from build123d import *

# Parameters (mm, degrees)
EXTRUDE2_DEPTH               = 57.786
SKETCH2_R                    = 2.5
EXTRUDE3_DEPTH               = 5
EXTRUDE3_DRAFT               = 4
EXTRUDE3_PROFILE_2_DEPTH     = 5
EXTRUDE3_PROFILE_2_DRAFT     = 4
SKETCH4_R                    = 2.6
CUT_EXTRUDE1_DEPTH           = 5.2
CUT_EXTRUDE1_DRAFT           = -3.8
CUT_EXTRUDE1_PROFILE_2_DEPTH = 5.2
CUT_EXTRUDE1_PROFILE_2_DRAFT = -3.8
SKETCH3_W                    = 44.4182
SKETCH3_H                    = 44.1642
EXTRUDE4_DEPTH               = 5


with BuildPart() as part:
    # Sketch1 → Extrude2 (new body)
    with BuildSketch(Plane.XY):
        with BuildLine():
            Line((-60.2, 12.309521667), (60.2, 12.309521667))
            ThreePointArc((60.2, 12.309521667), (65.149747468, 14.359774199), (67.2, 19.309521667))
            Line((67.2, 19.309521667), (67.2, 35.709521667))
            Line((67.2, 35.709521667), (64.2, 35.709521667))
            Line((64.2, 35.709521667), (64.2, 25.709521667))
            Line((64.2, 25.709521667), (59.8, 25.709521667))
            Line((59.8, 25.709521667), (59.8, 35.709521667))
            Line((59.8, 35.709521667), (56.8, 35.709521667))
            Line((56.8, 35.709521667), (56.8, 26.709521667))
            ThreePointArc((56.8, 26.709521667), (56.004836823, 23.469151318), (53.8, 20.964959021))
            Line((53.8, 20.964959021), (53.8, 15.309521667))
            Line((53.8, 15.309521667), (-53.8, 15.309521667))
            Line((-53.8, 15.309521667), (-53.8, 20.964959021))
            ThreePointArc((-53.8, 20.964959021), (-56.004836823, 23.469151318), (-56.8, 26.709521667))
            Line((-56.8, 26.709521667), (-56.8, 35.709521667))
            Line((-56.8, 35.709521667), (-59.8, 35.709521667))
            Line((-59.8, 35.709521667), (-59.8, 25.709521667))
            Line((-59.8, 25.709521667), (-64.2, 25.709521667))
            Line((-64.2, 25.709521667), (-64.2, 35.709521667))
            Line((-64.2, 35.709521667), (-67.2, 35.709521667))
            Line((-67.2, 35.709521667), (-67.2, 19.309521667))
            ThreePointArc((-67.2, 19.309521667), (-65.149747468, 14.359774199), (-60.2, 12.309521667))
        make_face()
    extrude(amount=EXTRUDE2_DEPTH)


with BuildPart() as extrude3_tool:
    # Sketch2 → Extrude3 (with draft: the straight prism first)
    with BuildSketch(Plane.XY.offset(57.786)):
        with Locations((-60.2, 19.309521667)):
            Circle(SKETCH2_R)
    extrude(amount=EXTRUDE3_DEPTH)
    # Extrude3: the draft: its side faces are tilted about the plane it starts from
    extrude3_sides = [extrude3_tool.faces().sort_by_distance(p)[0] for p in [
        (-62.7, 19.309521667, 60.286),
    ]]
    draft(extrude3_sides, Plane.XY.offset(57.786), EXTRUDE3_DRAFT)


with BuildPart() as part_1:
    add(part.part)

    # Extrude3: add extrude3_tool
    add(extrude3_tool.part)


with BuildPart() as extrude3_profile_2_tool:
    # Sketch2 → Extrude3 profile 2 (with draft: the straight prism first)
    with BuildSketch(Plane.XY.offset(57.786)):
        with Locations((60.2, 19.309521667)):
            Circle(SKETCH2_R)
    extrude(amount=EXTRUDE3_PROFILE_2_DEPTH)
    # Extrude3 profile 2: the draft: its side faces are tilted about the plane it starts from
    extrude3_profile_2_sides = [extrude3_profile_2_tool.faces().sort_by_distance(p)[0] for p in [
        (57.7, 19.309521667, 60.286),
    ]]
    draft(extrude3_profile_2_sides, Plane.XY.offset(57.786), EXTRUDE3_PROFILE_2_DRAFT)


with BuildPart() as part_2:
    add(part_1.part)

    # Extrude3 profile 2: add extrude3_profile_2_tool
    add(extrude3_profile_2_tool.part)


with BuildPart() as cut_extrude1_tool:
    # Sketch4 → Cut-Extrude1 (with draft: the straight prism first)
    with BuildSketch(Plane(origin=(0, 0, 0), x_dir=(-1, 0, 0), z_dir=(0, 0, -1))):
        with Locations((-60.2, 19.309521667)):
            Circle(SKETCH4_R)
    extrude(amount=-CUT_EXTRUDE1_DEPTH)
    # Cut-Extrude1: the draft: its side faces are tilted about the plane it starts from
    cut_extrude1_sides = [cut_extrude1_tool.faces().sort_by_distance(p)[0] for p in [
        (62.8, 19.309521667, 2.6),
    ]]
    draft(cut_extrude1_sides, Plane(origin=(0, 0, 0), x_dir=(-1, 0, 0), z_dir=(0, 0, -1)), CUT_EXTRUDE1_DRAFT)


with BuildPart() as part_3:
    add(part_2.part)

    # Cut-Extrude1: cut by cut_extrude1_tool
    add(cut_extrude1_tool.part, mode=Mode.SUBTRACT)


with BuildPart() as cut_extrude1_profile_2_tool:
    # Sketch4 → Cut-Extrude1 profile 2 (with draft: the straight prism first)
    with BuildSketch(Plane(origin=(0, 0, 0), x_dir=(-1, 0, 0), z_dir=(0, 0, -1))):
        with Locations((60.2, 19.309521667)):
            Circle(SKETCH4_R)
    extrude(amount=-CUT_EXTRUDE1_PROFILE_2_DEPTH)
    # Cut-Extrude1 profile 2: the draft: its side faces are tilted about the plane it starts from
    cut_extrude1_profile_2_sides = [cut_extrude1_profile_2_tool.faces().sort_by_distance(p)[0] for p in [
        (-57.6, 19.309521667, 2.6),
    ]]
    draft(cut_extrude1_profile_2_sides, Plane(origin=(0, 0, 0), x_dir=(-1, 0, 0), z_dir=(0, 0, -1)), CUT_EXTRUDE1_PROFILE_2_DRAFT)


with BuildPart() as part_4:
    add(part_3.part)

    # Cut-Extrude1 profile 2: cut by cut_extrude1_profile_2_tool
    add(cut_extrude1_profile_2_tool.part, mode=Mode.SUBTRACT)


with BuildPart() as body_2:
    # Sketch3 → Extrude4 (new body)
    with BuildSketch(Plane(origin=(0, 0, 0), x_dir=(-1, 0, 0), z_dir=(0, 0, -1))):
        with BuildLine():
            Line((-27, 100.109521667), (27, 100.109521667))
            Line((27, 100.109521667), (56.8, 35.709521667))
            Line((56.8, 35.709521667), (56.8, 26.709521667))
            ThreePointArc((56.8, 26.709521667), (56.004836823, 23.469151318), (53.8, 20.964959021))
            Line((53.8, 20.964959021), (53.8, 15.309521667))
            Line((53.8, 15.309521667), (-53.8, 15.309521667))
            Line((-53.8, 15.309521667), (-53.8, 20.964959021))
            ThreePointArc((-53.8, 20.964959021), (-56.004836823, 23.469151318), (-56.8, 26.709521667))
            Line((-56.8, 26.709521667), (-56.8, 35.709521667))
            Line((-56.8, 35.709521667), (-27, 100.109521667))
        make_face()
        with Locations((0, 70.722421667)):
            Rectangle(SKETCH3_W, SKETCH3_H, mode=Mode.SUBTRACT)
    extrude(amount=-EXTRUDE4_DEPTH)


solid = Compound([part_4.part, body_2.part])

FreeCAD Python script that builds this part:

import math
import FreeCAD as App
import Part
import Sketcher
from FreeCAD import Vector
Q = App.Units.Quantity


def faces_at(feature, points):
    """Names of the faces that lie closest to the given points."""
    faces = feature.Shape.Faces
    near = lambda p: min(range(len(faces)), key=lambda i: faces[i].distToShape(Part.Vertex(*p))[0])
    return sorted({f"Face{near(p) + 1}" for p in points})


def add_polygon(sketch, points):
    """Adds a closed chain of lines whose ends are joined by coincident constraints."""
    first, n = sketch.GeometryCount, len(points)
    for a, b in zip(points, points[1:] + points[:1]):
        sketch.addGeometry(Part.LineSegment(App.Vector(*a, 0), App.Vector(*b, 0)), False)
    for i in range(n):
        sketch.addConstraint(Sketcher.Constraint("Coincident", first + i, 2, first + (i + 1) % n, 1))

doc = App.newDocument("Part")
body = doc.addObject("PartDesign::Body", "Body")

# Sketch on XY plane
sketch1 = body.newObject("Sketcher::SketchObject", "Sketch")
sketch1.AttachmentSupport = (doc.getObject("XY_Plane"), [""])
sketch1.MapMode = "FlatFace"
sketch1.addGeometry([
    Part.LineSegment(Vector(-60.2, 12.309522, 0), Vector(60.2, 12.309522, 0)),  # 0
    Part.ArcOfCircle(Part.Circle(Vector(60.2, 19.309522, 0), Vector(0, 0, 1), 7), math.radians(-90), math.radians(0)),  # 1
    Part.LineSegment(Vector(67.2, 19.309522, 0), Vector(67.2, 35.709522, 0)),  # 2
    Part.LineSegment(Vector(67.2, 35.709522, 0), Vector(64.2, 35.709522, 0)),  # 3
    Part.LineSegment(Vector(64.2, 35.709522, 0), Vector(64.2, 25.709522, 0)),  # 4
    Part.LineSegment(Vector(64.2, 25.709522, 0), Vector(59.8, 25.709522, 0)),  # 5
    Part.LineSegment(Vector(59.8, 25.709522, 0), Vector(59.8, 35.709522, 0)),  # 6
    Part.LineSegment(Vector(59.8, 35.709522, 0), Vector(56.8, 35.709522, 0)),  # 7
    Part.LineSegment(Vector(56.8, 35.709522, 0), Vector(56.8, 26.709522, 0)),  # 8
    Part.ArcOfCircle(Part.Circle(Vector(49.8, 26.709522, 0), Vector(0, 0, 1), 7), math.radians(-55.150095), math.radians(0)),  # 9
    Part.LineSegment(Vector(53.8, 20.964959, 0), Vector(53.8, 15.309522, 0)),  # 10
    Part.LineSegment(Vector(53.8, 15.309522, 0), Vector(-53.8, 15.309522, 0)),  # 11
    Part.LineSegment(Vector(-53.8, 15.309522, 0), Vector(-53.8, 20.964959, 0)),  # 12
    Part.ArcOfCircle(Part.Circle(Vector(-49.8, 26.709522, 0), Vector(0, 0, 1), 7), math.radians(180), math.radians(235.150095)),  # 13
    Part.LineSegment(Vector(-56.8, 26.709522, 0), Vector(-56.8, 35.709522, 0)),  # 14
    Part.LineSegment(Vector(-56.8, 35.709522, 0), Vector(-59.8, 35.709522, 0)),  # 15
    Part.LineSegment(Vector(-59.8, 35.709522, 0), Vector(-59.8, 25.709522, 0)),  # 16
    Part.LineSegment(Vector(-59.8, 25.709522, 0), Vector(-64.2, 25.709522, 0)),  # 17
    Part.LineSegment(Vector(-64.2, 25.709522, 0), Vector(-64.2, 35.709522, 0)),  # 18
    Part.LineSegment(Vector(-64.2, 35.709522, 0), Vector(-67.2, 35.709522, 0)),  # 19
    Part.LineSegment(Vector(-67.2, 35.709522, 0), Vector(-67.2, 19.309522, 0)),  # 20
    Part.ArcOfCircle(Part.Circle(Vector(-60.2, 19.309522, 0), Vector(0, 0, 1), 7), math.radians(-180), math.radians(-90)),  # 21
], False)
sketch1.addConstraint([
    Sketcher.Constraint("Tangent", 0, 2, 1, 1),
    Sketcher.Constraint("Tangent", 1, 2, 2, 1),
    Sketcher.Constraint("Coincident", 2, 2, 3, 1),
    Sketcher.Constraint("Coincident", 3, 2, 4, 1),
    Sketcher.Constraint("Coincident", 4, 2, 5, 1),
    Sketcher.Constraint("Coincident", 5, 2, 6, 1),
    Sketcher.Constraint("Coincident", 6, 2, 7, 1),
    Sketcher.Constraint("Coincident", 7, 2, 8, 1),
    Sketcher.Constraint("Tangent", 8, 2, 9, 2),
    Sketcher.Constraint("Coincident", 9, 1, 10, 1),
    Sketcher.Constraint("Coincident", 10, 2, 11, 1),
    Sketcher.Constraint("Coincident", 11, 2, 12, 1),
    Sketcher.Constraint("Coincident", 12, 2, 13, 2),
    Sketcher.Constraint("Tangent", 13, 1, 14, 1),
    Sketcher.Constraint("Coincident", 14, 2, 15, 1),
    Sketcher.Constraint("Coincident", 15, 2, 16, 1),
    Sketcher.Constraint("Coincident", 16, 2, 17, 1),
    Sketcher.Constraint("Coincident", 17, 2, 18, 1),
    Sketcher.Constraint("Coincident", 18, 2, 19, 1),
    Sketcher.Constraint("Coincident", 19, 2, 20, 1),
    Sketcher.Constraint("Tangent", 20, 2, 21, 1),
    Sketcher.Constraint("Tangent", 21, 2, 0, 1),
    Sketcher.Constraint("Horizontal", 0),
    Sketcher.Constraint("Vertical", 2),
    Sketcher.Constraint("Horizontal", 3),
    Sketcher.Constraint("Vertical", 4),
    Sketcher.Constraint("Horizontal", 5),
    Sketcher.Constraint("Vertical", 6),
    Sketcher.Constraint("Horizontal", 7),
    Sketcher.Constraint("Vertical", 8),
    Sketcher.Constraint("Vertical", 10),
    Sketcher.Constraint("Horizontal", 11),
    Sketcher.Constraint("Vertical", 12),
    Sketcher.Constraint("Vertical", 14),
    Sketcher.Constraint("Horizontal", 15),
    Sketcher.Constraint("Vertical", 16),
    Sketcher.Constraint("Horizontal", 17),
    Sketcher.Constraint("Vertical", 18),
    Sketcher.Constraint("Horizontal", 19),
    Sketcher.Constraint("Vertical", 20),
    Sketcher.Constraint("Equal", 1, 9),
    Sketcher.Constraint("Equal", 9, 13),
    Sketcher.Constraint("Equal", 13, 21),
    Sketcher.Constraint("Symmetric", 9, 3, 13, 3, -2),
    Sketcher.Constraint("Symmetric", 6, 2, 15, 2, -2),
    Sketcher.Constraint("Symmetric", 4, 2, 17, 2, -2),
    Sketcher.Constraint("Symmetric", 2, 2, 19, 2, -2),
    Sketcher.Constraint("Horizontal", 3, 2, 6, 2),
    Sketcher.Constraint("Horizontal", 9, 1, 12, 2),
    Sketcher.Constraint("Equal", 3, 7),
    Sketcher.Constraint("Radius", 1, Q("7 mm")),
    Sketcher.Constraint("DistanceX", 3, 2, 3, 1, Q("3 mm")),
    Sketcher.Constraint("DistanceY", 4, 2, 4, 1, Q("10 mm")),
    Sketcher.Constraint("DistanceY", 8, 2, 8, 1, Q("9 mm")),
    Sketcher.Constraint("DistanceX", 0, 1, 0, 2, Q("120.4 mm")),
    Sketcher.Constraint("DistanceX", 5, 2, 5, 1, Q("4.4 mm")),
    Sketcher.Constraint("DistanceX", 11, 2, 11, 1, Q("107.6 mm")),
    Sketcher.Constraint("DistanceY", 2, 1, 2, 2, Q("16.4 mm")),
    Sketcher.Constraint("DistanceY", 0, 2, 10, 2, Q("3 mm")),
    Sketcher.Constraint("DistanceY", -1, 1, 1, 3, Q("19.309522 mm")),
])
pad1 = body.newObject("PartDesign::Pad", "Pad")
pad1.Profile = sketch1
pad1.Length = 57.786
body2 = doc.addObject("PartDesign::Body", "Body001")

# Sketch on XY plane
sketch2 = body2.newObject("Sketcher::SketchObject", "Sketch001")
sketch2.AttachmentSupport = (doc.getObject("XY_Plane001"), [""])
sketch2.MapMode = "FlatFace"
sketch2.AttachmentOffset = App.Placement(Vector(0, 0, 57.786), App.Rotation())
sketch2.addGeometry(Part.Circle(Vector(-60.2, 19.309522, 0), Vector(0, 0, 1), 2.5), False)
sketch2.addConstraint([
    Sketcher.Constraint("Diameter", 0, Q("5 mm")),
    Sketcher.Constraint("DistanceX", 0, 3, -1, 1, Q("60.2 mm")),
    Sketcher.Constraint("DistanceY", -1, 1, 0, 3, Q("19.309522 mm")),
])
pad2 = body2.newObject("PartDesign::Pad", "Pad001")
pad2.Profile = sketch2
pad2.Length = 5
doc.recompute()

datumplane = body2.newObject("PartDesign::Plane", "DatumPlane")
datumplane.AttachmentSupport = (doc.getObject("XY_Plane001"), [""])
datumplane.MapMode = "FlatFace"
datumplane.AttachmentOffset = App.Placement(Vector(0, 0, 57.786), App.Rotation())
draft = body2.newObject("PartDesign::Draft", "Draft")
draft.Base = (pad2, faces_at(pad2, [(-62.7, 19.31, 60.286)]))
draft.NeutralPlane = (datumplane, [""])
draft.Angle = 4
draft.Reversed = False
doc.recompute()

boolean = body.newObject("PartDesign::Boolean", "Boolean")
boolean.Type = "Fuse"
boolean.addObjects([body2])
body3 = doc.addObject("PartDesign::Body", "Body002")

# Sketch on XY plane
sketch3 = body3.newObject("Sketcher::SketchObject", "Sketch002")
sketch3.AttachmentSupport = (doc.getObject("XY_Plane002"), [""])
sketch3.MapMode = "FlatFace"
sketch3.AttachmentOffset = App.Placement(Vector(0, 0, 57.786), App.Rotation())
sketch3.addGeometry(Part.Circle(Vector(60.2, 19.309522, 0), Vector(0, 0, 1), 2.5), False)
sketch3.addConstraint([
    Sketcher.Constraint("Diameter", 0, Q("5 mm")),
    Sketcher.Constraint("DistanceX", -1, 1, 0, 3, Q("60.2 mm")),
    Sketcher.Constraint("DistanceY", -1, 1, 0, 3, Q("19.309522 mm")),
])
pad3 = body3.newObject("PartDesign::Pad", "Pad002")
pad3.Profile = sketch3
pad3.Length = 5
doc.recompute()

datumplane2 = body3.newObject("PartDesign::Plane", "DatumPlane001")
datumplane2.AttachmentSupport = (doc.getObject("XY_Plane002"), [""])
datumplane2.MapMode = "FlatFace"
datumplane2.AttachmentOffset = App.Placement(Vector(0, 0, 57.786), App.Rotation())
draft2 = body3.newObject("PartDesign::Draft", "Draft001")
draft2.Base = (pad3, faces_at(pad3, [(57.7, 19.31, 60.286)]))
draft2.NeutralPlane = (datumplane2, [""])
draft2.Angle = 4
draft2.Reversed = False
doc.recompute()

boolean2 = body.newObject("PartDesign::Boolean", "Boolean001")
boolean2.Type = "Fuse"
boolean2.addObjects([body3])
body4 = doc.addObject("PartDesign::Body", "Body003")

# Sketch on XY plane
sketch4 = body4.newObject("Sketcher::SketchObject", "Sketch003")
sketch4.AttachmentSupport = (doc.getObject("XY_Plane003"), [""])
sketch4.MapMode = "FlatFace"
sketch4.addGeometry(Part.Circle(Vector(60.2, 19.309522, 0), Vector(0, 0, 1), 2.6), False)
sketch4.addConstraint([
    Sketcher.Constraint("Diameter", 0, Q("5.2 mm")),
    Sketcher.Constraint("DistanceX", -1, 1, 0, 3, Q("60.2 mm")),
    Sketcher.Constraint("DistanceY", -1, 1, 0, 3, Q("19.309522 mm")),
])
pad4 = body4.newObject("PartDesign::Pad", "Pad003")
pad4.Profile = sketch4
pad4.Length = 5.2
doc.recompute()

draft3 = body4.newObject("PartDesign::Draft", "Draft002")
draft3.Base = (pad4, faces_at(pad4, [(62.8, 19.31, 2.6)]))
draft3.NeutralPlane = (doc.getObject("XY_Plane003"), [""])
draft3.Angle = 3.8
draft3.Reversed = False
doc.recompute()

boolean3 = body.newObject("PartDesign::Boolean", "Boolean002")
boolean3.Type = "Cut"
boolean3.addObjects([body4])
body5 = doc.addObject("PartDesign::Body", "Body004")

# Sketch on XY plane
sketch5 = body5.newObject("Sketcher::SketchObject", "Sketch004")
sketch5.AttachmentSupport = (doc.getObject("XY_Plane004"), [""])
sketch5.MapMode = "FlatFace"
sketch5.addGeometry(Part.Circle(Vector(-60.2, 19.309522, 0), Vector(0, 0, 1), 2.6), False)
sketch5.addConstraint([
    Sketcher.Constraint("Diameter", 0, Q("5.2 mm")),
    Sketcher.Constraint("DistanceX", 0, 3, -1, 1, Q("60.2 mm")),
    Sketcher.Constraint("DistanceY", -1, 1, 0, 3, Q("19.309522 mm")),
])
pad5 = body5.newObject("PartDesign::Pad", "Pad004")
pad5.Profile = sketch5
pad5.Length = 5.2
doc.recompute()

draft4 = body5.newObject("PartDesign::Draft", "Draft003")
draft4.Base = (pad5, faces_at(pad5, [(-57.6, 19.31, 2.6)]))
draft4.NeutralPlane = (doc.getObject("XY_Plane004"), [""])
draft4.Angle = 3.8
draft4.Reversed = False
doc.recompute()

boolean4 = body.newObject("PartDesign::Boolean", "Boolean003")
boolean4.Type = "Cut"
boolean4.addObjects([body5])
body6 = doc.addObject("PartDesign::Body", "Body005")

# Sketch on XY plane
sketch6 = body6.newObject("Sketcher::SketchObject", "Sketch005")
sketch6.AttachmentSupport = (doc.getObject("XY_Plane005"), [""])
sketch6.MapMode = "FlatFace"
sketch6.addGeometry(Part.LineSegment(Vector(-27, 100.109522, 0), Vector(27, 100.109522, 0)), False)  # 0
sketch6.addGeometry(Part.LineSegment(Vector(27, 100.109522, 0), Vector(56.8, 35.709522, 0)), False)  # 1
sketch6.addGeometry(Part.LineSegment(Vector(56.8, 35.709522, 0), Vector(56.8, 26.709522, 0)), False)  # 2
sketch6.addGeometry(Part.ArcOfCircle(Part.Circle(Vector(49.8, 26.709522, 0), Vector(0, 0, 1), 7), math.radians(-55.150095), math.radians(0)), False)  # 3
sketch6.addGeometry(Part.LineSegment(Vector(53.8, 20.964959, 0), Vector(53.8, 15.309522, 0)), False)  # 4
sketch6.addGeometry(Part.LineSegment(Vector(53.8, 15.309522, 0), Vector(-53.8, 15.309522, 0)), False)  # 5
sketch6.addGeometry(Part.LineSegment(Vector(-53.8, 15.309522, 0), Vector(-53.8, 20.964959, 0)), False)  # 6
sketch6.addGeometry(Part.ArcOfCircle(Part.Circle(Vector(-49.8, 26.709522, 0), Vector(0, 0, 1), 7), math.radians(180), math.radians(235.150095)), False)  # 7
sketch6.addGeometry(Part.LineSegment(Vector(-56.8, 26.709522, 0), Vector(-56.8, 35.709522, 0)), False)  # 8
sketch6.addGeometry(Part.LineSegment(Vector(-56.8, 35.709522, 0), Vector(-27, 100.109522, 0)), False)  # 9
add_polygon(sketch6, [(22.2091, 48.640322), (22.2091, 92.804522), (-22.2091, 92.804522), (-22.2091, 48.640322)])  # lines 10-13
sketch6.addConstraint([
    Sketcher.Constraint("Coincident", 0, 2, 1, 1),
    Sketcher.Constraint("Coincident", 1, 2, 2, 1),
    Sketcher.Constraint("Tangent", 2, 2, 3, 2),
    Sketcher.Constraint("Coincident", 3, 1, 4, 1),
    Sketcher.Constraint("Coincident", 4, 2, 5, 1),
    Sketcher.Constraint("Coincident", 5, 2, 6, 1),
    Sketcher.Constraint("Coincident", 6, 2, 7, 2),
    Sketcher.Constraint("Tangent", 7, 1, 8, 1),
    Sketcher.Constraint("Coincident", 8, 2, 9, 1),
    Sketcher.Constraint("Coincident", 9, 2, 0, 1),
    Sketcher.Constraint("Horizontal", 0),
    Sketcher.Constraint("Vertical", 2),
    Sketcher.Constraint("Vertical", 4),
    Sketcher.Constraint("Horizontal", 5),
    Sketcher.Constraint("Vertical", 6),
    Sketcher.Constraint("Vertical", 8),
    Sketcher.Constraint("Vertical", 10),
    Sketcher.Constraint("Horizontal", 11),
    Sketcher.Constraint("Vertical", 12),
    Sketcher.Constraint("Horizontal", 13),
    Sketcher.Constraint("Equal", 3, 7),
    Sketcher.Constraint("Symmetric", 3, 3, 7, 3, -2),
    Sketcher.Constraint("Horizontal", 3, 1, 6, 2),
    Sketcher.Constraint("Horizontal", 1, 2, 8, 2),
    Sketcher.Constraint("Equal", 1, 9),
    Sketcher.Constraint("Radius", 3, Q("7 mm")),
    Sketcher.Constraint("DistanceX", 0, 1, 0, 2, Q("54 mm")),
    Sketcher.Constraint("DistanceY", 2, 2, 2, 1, Q("9 mm")),
    Sketcher.Constraint("DistanceX", 5, 2, 5, 1, Q("107.6 mm")),
    Sketcher.Constraint("DistanceX", 3, 1, 2, 2, Q("3 mm")),
    Sketcher.Constraint("DistanceY", 3, 3, 0, 2, Q("73.4 mm")),
    Sketcher.Constraint("DistanceY", 4, 2, 2, 2, Q("11.4 mm")),
    Sketcher.Constraint("DistanceX", 11, 2, 11, 1, Q("44.4182 mm")),
    Sketcher.Constraint("DistanceY", 10, 1, 10, 2, Q("44.1642 mm")),
    Sketcher.Constraint("DistanceY", 10, 2, 0, 2, Q("7.305 mm")),
    Sketcher.Constraint("DistanceX", -1, 1, 10, 2, Q("22.2091 mm")),
    Sketcher.Constraint("DistanceY", -1, 1, 3, 3, Q("26.709522 mm")),
])
pad6 = body6.newObject("PartDesign::Pad", "Pad005")
pad6.Profile = sketch6
pad6.Length = 5

doc.recompute()
